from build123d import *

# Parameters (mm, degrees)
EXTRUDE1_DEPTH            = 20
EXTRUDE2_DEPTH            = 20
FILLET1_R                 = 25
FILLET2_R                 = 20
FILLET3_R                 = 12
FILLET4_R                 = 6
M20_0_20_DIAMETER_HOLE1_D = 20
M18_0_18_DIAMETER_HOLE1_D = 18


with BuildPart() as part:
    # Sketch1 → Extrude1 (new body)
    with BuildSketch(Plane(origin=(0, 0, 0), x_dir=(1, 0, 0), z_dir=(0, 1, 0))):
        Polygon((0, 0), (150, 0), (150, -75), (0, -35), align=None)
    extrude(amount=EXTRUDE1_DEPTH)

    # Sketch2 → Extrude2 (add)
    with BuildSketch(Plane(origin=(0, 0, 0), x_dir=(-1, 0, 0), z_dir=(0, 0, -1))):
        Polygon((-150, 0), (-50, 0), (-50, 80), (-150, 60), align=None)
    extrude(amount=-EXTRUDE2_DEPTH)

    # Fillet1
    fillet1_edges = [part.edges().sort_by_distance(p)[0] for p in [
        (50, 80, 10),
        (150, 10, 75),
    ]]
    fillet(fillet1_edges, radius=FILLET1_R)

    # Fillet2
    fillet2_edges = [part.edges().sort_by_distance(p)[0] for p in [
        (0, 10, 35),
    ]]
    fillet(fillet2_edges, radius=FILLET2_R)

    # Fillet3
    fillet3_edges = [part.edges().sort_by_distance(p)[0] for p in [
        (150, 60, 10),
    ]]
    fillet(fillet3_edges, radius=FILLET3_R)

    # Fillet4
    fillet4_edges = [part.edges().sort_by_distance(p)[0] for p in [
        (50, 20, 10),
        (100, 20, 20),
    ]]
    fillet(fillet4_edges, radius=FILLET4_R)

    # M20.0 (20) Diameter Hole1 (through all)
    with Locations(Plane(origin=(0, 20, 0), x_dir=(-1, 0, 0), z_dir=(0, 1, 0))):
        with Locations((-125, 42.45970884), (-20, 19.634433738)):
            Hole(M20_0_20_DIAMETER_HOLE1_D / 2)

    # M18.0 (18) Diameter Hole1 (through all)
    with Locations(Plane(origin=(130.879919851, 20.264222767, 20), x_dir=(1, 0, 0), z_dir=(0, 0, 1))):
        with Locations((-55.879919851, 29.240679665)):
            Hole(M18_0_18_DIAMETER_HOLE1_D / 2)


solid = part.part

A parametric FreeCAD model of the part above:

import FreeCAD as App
import Part
import Sketcher
from FreeCAD import Vector
Q = App.Units.Quantity


def edges_at(feature, points):
    """Names of the edges that pass closest to the given points."""
    edges = feature.Shape.Edges
    near = lambda p: min(range(len(edges)), key=lambda i: edges[i].distToShape(Part.Vertex(*p))[0])
    return sorted({f"Edge{near(p) + 1}" for p in points})


def add_polygon(sketch, points):
    """Adds a closed chain of lines whose ends are joined by coincident constraints."""
    first, n = sketch.GeometryCount, len(points)
    for a, b in zip(points, points[1:] + points[:1]):
        sketch.addGeometry(Part.LineSegment(App.Vector(*a, 0), App.Vector(*b, 0)), False)
    for i in range(n):
        sketch.addConstraint(Sketcher.Constraint("Coincident", first + i, 2, first + (i + 1) % n, 1))

doc = App.newDocument("Part")
body = doc.addObject("PartDesign::Body", "Body")

# Sketch on XZ plane
sketch1 = doc.addObject("Sketcher::SketchObject", "Sketch")
body.addObject(sketch1)
sketch1.AttachmentSupport = (doc.XZ_Plane, [""])
sketch1.MapMode = "FlatFace"
add_polygon(sketch1, [(150, 0), (0, 0), (0, 35), (150, 75)])  # lines 0-3
sketch1.addConstraint([
    Sketcher.Constraint("Horizontal", 0),
    Sketcher.Constraint("Vertical", 1),
    Sketcher.Constraint("Vertical", 3),
    Sketcher.Constraint("Coincident", 0, 2, -1, 1),
    Sketcher.Constraint("DistanceX", 0, 2, 0, 1, Q("150 mm")),
    Sketcher.Constraint("DistanceY", 1, 1, 1, 2, Q("35 mm")),
    Sketcher.Constraint("DistanceY", 3, 2, 3, 1, Q("75 mm")),
])
pad1 = doc.addObject("PartDesign::Pad", "Pad")
body.addObject(pad1)
pad1.Profile = sketch1
pad1.Length = 20
pad1.Reversed = True

# Sketch on XY plane
sketch2 = doc.addObject("Sketcher::SketchObject", "Sketch001")
body.addObject(sketch2)
sketch2.AttachmentSupport = (doc.XY_Plane, [""])
sketch2.MapMode = "FlatFace"
add_polygon(sketch2, [(150, 0), (50, 0), (50, 80), (150, 60)])  # lines 0-3
sketch2.addConstraint([
    Sketcher.Constraint("Horizontal", 0),
    Sketcher.Constraint("Vertical", 1),
    Sketcher.Constraint("Vertical", 3),
    Sketcher.Constraint("PointOnObject", 0, 2, -1),
    Sketcher.Constraint("DistanceX", 0, 2, 0, 1, Q("100 mm")),
    Sketcher.Constraint("DistanceY", 1, 1, 1, 2, Q("80 mm")),
    Sketcher.Constraint("DistanceY", 3, 2, 3, 1, Q("60 mm")),
    Sketcher.Constraint("DistanceX", -1, 1, 0, 2, Q("50 mm")),
])
pad2 = doc.addObject("PartDesign::Pad", "Pad001")
body.addObject(pad2)
pad2.Profile = sketch2
pad2.Length = 20
doc.recompute()

fillet = doc.addObject("PartDesign::Fillet", "Fillet")
body.addObject(fillet)
fillet.Base = (pad2, edges_at(pad2, [(50, 80, 10), (150, 10, 75)]))
fillet.Radius = 25
doc.recompute()

fillet2 = doc.addObject("PartDesign::Fillet", "Fillet001")
body.addObject(fillet2)
fillet2.Base = (fillet, edges_at(fillet, [(0, 10, 35)]))
fillet2.Radius = 20
doc.recompute()

fillet3 = doc.addObject("PartDesign::Fillet", "Fillet002")
body.addObject(fillet3)
fillet3.Base = (fillet2, edges_at(fillet2, [(150, 60, 10)]))
fillet3.Radius = 12
doc.recompute()

fillet4 = doc.addObject("PartDesign::Fillet", "Fillet003")
body.addObject(fillet4)
fillet4.Base = (fillet3, edges_at(fillet3, [(50, 20, 10), (100, 20, 20)]))
fillet4.Radius = 6

# Sketch on XZ plane
sketch3 = doc.addObject("Sketcher::SketchObject", "Sketch002")
body.addObject(sketch3)
sketch3.AttachmentSupport = (doc.XZ_Plane, [""])
sketch3.MapMode = "FlatFace"
sketch3.AttachmentOffset = App.Placement(Vector(0, 0, -20), App.Rotation())
sketch3.addGeometry([
    Part.Circle(Vector(125, 42, 0), Vector(0, 0, 1), 10),
    Part.Circle(Vector(20, 20, 0), Vector(0, 0, 1), 10),
], False)
sketch3.addConstraint([
    Sketcher.Constraint("Equal", 0, 1),
    Sketcher.Constraint("Diameter", 0, Q("20 mm")),
    Sketcher.Constraint("DistanceX", -1, 1, 0, 3, Q("125 mm")),
    Sketcher.Constraint("DistanceX", -1, 1, 1, 3, Q("20 mm")),
    Sketcher.Constraint("DistanceY", -1, 1, 0, 3, Q("42.459709 mm")),
    Sketcher.Constraint("DistanceY", -1, 1, 1, 3, Q("19.634434 mm")),
])
doc.recompute()
hole = doc.addObject("PartDesign::Hole", "Hole")
body.addObject(hole)
hole.Profile = sketch3
hole.ThreadType = "None"
hole.Diameter = 20
hole.DepthType = "ThroughAll"
hole.Reversed = True

# Sketch on XY plane
sketch4 = doc.addObject("Sketcher::SketchObject", "Sketch003")
body.addObject(sketch4)
sketch4.AttachmentSupport = (doc.XY_Plane, [""])
sketch4.MapMode = "FlatFace"
sketch4.AttachmentOffset = App.Placement(Vector(0, 0, 20), App.Rotation())
sketch4.addGeometry(Part.Circle(Vector(75, 50, 0), Vector(0, 0, 1), 9), False)
sketch4.addConstraint([
    Sketcher.Constraint("Diameter", 0, Q("18 mm")),
    Sketcher.Constraint("DistanceX", -1, 1, 0, 3, Q("75 mm")),
    Sketcher.Constraint("DistanceY", -1, 1, 0, 3, Q("49.504902 mm")),
])
doc.recompute()
hole2 = doc.addObject("PartDesign::Hole", "Hole001")
body.addObject(hole2)
hole2.Profile = sketch4
hole2.ThreadType = "None"
hole2.Diameter = 18
hole2.DepthType = "ThroughAll"

doc.recompute()
